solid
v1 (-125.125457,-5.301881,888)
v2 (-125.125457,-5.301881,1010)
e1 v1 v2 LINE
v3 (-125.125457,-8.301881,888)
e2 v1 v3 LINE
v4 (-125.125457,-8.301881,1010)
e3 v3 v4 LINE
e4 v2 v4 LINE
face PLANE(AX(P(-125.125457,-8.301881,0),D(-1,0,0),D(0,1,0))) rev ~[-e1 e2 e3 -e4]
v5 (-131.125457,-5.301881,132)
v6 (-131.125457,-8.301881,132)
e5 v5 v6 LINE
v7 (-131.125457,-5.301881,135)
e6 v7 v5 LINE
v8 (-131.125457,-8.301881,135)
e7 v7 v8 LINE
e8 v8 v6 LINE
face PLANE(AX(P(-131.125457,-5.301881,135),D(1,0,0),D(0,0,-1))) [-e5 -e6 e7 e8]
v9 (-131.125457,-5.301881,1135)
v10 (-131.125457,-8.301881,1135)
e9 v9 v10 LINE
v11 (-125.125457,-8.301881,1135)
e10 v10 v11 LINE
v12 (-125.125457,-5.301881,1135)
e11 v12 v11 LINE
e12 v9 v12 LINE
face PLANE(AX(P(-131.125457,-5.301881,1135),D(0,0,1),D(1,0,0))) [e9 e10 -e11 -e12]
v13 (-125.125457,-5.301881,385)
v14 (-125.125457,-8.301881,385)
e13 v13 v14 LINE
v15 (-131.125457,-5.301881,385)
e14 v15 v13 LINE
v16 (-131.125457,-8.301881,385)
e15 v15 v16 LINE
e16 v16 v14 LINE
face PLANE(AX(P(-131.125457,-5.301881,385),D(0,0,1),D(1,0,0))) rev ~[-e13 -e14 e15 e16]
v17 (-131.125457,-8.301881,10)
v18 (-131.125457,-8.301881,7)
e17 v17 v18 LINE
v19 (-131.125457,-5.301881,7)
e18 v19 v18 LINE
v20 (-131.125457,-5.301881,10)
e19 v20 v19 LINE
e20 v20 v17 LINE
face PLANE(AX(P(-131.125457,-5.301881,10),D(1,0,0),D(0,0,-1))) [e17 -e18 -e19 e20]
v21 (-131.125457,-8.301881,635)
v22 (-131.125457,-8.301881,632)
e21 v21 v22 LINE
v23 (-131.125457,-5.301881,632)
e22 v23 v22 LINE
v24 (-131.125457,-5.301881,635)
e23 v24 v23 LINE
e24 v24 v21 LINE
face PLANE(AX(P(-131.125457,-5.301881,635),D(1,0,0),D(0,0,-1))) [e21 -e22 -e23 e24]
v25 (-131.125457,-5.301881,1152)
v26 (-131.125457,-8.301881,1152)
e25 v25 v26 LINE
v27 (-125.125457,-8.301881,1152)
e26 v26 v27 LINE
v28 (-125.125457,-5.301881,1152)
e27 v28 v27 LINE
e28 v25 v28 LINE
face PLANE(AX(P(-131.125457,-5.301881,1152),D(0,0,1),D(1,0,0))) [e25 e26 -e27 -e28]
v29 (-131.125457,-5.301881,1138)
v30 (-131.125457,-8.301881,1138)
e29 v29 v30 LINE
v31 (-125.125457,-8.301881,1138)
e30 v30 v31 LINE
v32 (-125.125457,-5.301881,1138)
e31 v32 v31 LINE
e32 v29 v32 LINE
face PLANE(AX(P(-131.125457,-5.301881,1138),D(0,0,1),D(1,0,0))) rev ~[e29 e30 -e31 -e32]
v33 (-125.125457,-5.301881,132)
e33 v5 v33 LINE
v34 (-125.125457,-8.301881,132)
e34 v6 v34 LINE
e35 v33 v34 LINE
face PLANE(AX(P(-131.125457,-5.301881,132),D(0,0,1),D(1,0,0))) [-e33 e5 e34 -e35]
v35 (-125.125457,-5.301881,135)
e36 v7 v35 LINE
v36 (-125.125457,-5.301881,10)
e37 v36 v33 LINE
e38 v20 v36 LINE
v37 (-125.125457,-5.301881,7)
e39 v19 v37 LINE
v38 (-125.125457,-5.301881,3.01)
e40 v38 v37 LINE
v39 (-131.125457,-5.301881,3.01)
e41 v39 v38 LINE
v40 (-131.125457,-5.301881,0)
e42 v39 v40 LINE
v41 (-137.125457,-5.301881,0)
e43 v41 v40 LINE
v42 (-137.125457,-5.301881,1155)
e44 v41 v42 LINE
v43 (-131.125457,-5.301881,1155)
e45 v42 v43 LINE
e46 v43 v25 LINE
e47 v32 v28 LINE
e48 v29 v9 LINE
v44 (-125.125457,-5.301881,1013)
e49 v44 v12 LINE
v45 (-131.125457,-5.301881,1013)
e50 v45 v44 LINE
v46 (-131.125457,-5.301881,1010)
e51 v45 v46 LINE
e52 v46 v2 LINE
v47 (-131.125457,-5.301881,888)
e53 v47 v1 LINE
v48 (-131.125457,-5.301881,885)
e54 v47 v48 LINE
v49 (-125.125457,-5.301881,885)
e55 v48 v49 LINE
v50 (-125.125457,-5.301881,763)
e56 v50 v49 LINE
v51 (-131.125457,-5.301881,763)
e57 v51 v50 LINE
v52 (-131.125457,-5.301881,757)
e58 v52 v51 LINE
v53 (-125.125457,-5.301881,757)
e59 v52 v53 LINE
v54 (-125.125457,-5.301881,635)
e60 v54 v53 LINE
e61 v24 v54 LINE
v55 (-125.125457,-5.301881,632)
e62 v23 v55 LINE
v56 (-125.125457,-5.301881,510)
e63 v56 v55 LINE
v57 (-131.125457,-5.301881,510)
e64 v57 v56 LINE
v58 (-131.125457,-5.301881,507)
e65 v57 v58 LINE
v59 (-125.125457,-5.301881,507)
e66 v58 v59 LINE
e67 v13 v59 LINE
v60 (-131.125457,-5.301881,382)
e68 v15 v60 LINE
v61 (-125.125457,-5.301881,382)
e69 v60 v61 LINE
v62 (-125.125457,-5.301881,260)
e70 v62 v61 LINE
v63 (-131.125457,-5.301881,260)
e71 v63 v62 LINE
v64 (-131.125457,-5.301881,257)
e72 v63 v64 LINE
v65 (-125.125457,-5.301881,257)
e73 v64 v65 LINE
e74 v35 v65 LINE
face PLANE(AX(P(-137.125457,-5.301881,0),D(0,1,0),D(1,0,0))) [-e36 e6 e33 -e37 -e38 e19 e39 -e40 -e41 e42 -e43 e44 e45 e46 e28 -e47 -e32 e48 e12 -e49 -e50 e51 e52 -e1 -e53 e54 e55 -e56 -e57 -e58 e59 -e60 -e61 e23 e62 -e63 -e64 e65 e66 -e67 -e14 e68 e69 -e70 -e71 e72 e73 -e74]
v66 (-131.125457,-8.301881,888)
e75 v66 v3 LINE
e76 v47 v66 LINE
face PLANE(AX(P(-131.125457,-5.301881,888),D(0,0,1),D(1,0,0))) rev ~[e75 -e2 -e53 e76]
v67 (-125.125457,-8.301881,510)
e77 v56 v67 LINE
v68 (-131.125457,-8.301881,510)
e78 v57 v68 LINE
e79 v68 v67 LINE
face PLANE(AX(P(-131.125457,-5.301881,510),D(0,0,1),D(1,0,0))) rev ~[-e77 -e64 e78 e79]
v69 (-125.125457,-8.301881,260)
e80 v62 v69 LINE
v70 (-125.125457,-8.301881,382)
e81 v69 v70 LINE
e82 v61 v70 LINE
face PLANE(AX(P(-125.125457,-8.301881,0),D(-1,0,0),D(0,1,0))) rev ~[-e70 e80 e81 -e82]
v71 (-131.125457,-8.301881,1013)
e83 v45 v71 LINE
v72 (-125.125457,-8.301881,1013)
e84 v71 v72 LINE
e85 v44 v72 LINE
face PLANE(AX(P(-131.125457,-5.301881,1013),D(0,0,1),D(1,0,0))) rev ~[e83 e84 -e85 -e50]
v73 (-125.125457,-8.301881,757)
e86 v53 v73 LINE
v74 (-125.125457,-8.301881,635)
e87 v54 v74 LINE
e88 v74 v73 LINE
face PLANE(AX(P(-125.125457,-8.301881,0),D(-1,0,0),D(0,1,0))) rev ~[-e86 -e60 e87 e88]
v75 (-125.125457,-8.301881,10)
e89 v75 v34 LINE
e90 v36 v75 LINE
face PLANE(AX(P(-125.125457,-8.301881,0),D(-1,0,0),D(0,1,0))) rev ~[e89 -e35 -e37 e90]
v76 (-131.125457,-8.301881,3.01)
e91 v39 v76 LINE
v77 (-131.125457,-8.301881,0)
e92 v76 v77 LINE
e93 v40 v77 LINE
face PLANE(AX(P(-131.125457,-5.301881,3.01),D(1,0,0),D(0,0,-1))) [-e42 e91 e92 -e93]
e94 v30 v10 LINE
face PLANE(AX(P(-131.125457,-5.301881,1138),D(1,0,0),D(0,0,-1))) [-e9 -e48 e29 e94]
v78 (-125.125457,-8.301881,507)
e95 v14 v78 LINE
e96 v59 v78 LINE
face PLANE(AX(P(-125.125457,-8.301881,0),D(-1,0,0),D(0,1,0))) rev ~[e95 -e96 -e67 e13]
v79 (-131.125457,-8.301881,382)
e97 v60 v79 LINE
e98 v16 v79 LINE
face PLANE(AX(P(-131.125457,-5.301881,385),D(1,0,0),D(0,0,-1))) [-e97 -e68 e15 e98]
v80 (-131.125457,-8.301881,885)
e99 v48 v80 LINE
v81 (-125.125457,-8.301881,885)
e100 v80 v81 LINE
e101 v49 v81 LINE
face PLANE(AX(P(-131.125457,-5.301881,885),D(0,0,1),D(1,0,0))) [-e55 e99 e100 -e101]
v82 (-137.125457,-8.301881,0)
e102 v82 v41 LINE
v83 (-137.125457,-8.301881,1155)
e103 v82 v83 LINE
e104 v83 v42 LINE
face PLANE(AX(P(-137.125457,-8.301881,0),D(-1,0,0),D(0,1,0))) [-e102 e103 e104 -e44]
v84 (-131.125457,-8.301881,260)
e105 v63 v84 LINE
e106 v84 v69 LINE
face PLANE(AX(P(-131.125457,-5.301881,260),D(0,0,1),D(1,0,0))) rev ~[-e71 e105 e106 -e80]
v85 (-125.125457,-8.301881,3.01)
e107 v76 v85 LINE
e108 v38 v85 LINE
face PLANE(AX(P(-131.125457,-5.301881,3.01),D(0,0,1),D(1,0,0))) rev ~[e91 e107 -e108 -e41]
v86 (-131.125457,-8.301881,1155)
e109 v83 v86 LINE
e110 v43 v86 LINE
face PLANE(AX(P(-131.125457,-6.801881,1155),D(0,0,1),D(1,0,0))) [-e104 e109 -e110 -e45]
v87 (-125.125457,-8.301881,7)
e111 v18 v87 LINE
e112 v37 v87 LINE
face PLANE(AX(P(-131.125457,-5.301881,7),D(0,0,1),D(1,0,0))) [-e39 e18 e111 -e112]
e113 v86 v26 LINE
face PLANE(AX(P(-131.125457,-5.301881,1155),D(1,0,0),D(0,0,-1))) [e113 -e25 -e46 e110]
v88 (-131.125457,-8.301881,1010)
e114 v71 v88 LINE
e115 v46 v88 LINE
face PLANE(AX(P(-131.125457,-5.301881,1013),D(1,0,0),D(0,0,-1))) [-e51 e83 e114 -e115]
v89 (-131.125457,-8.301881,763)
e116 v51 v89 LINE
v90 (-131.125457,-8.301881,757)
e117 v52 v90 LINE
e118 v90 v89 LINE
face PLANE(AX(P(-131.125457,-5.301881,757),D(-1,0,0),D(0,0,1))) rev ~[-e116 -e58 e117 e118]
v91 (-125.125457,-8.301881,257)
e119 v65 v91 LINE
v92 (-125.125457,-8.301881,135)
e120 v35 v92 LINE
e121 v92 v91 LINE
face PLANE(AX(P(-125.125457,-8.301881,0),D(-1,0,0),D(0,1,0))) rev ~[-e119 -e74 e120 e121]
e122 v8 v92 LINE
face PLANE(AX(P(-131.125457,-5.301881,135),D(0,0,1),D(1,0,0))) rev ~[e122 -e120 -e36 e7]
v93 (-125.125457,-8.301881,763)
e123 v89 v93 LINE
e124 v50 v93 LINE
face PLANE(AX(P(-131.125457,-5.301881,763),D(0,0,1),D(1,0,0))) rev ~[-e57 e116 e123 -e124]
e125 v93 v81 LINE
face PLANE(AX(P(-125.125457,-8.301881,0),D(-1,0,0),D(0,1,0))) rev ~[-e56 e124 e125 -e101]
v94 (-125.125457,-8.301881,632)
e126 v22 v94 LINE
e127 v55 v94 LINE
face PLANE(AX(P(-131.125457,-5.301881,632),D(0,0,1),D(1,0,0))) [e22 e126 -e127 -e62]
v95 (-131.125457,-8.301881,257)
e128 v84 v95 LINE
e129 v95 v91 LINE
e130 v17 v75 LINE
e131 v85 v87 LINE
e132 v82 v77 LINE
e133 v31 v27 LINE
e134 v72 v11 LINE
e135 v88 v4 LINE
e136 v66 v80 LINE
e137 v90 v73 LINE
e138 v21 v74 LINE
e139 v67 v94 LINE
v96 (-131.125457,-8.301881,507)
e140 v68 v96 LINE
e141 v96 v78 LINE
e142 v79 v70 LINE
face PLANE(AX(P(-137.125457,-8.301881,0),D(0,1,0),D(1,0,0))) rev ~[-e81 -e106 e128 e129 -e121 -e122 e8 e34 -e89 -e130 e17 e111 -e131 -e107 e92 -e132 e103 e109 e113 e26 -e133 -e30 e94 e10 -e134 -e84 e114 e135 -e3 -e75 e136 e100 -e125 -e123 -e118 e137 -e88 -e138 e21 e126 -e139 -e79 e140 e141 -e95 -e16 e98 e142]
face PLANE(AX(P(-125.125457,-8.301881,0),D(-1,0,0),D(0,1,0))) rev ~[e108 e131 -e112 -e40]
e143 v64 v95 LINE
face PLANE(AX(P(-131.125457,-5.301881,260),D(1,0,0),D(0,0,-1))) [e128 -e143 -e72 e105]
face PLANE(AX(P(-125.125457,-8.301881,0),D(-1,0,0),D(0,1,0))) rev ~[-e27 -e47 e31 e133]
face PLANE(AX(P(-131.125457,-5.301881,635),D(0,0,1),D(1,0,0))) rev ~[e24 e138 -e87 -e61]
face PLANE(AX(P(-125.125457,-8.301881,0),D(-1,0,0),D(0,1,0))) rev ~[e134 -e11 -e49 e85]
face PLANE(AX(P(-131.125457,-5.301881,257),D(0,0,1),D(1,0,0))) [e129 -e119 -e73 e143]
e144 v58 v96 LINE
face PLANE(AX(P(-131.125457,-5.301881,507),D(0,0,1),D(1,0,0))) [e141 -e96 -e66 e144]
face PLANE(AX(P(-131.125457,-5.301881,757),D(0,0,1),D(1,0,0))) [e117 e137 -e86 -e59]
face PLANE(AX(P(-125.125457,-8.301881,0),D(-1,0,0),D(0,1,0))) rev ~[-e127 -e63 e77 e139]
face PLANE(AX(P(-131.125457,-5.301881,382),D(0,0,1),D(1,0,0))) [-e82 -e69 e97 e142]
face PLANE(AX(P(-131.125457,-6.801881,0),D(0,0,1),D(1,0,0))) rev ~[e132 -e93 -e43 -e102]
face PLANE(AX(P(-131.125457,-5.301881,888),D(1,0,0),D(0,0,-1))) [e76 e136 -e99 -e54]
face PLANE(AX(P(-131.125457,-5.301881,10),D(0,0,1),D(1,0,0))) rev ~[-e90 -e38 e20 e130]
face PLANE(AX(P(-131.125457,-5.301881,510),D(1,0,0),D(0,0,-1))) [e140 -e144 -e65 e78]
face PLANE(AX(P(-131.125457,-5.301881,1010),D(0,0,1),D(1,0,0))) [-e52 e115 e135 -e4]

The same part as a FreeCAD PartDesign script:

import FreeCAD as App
import Part
import Sketcher
from FreeCAD import Vector


def add_polygon(sketch, points):
    """Adds a closed chain of lines whose ends are joined by coincident constraints."""
    first, n = sketch.GeometryCount, len(points)
    for a, b in zip(points, points[1:] + points[:1]):
        sketch.addGeometry(Part.LineSegment(App.Vector(*a, 0), App.Vector(*b, 0)), False)
    for i in range(n):
        sketch.addConstraint(Sketcher.Constraint("Coincident", first + i, 2, first + (i + 1) % n, 1))

doc = App.newDocument("Part")
body = doc.addObject("PartDesign::Body", "Body")

# Sketch on XY plane
sketch1 = doc.addObject("Sketcher::SketchObject", "Sketch")
body.addObject(sketch1)
sketch1.AttachmentSupport = (doc.XY_Plane, [""])
sketch1.MapMode = "FlatFace"
add_polygon(sketch1, [(-137.1, -5.3), (-137.1, -8.3), (-125.1, -8.3), (-125.1, -5.3)])  # lines 0-3
sketch1.addConstraint(Sketcher.Constraint("Vertical", 0))
sketch1.addConstraint(Sketcher.Constraint("Horizontal", 1))
sketch1.addConstraint(Sketcher.Constraint("Vertical", 2))
sketch1.addConstraint(Sketcher.Constraint("Horizontal", 3))
sketch1.addConstraint(Sketcher.Constraint("DistanceX", 1, 1, 1, 2, 12.0))
sketch1.addConstraint(Sketcher.Constraint("DistanceY", 0, 2, 0, 1, 3.0))
sketch1.addConstraint(Sketcher.Constraint("DistanceY", 0, 2, -1, 1, 8.301881))
sketch1.addConstraint(Sketcher.Constraint("DistanceX", 0, 2, -1, 1, 137.125457))
pad1 = doc.addObject("PartDesign::Pad", "Pad")
body.addObject(pad1)
pad1.Profile = sketch1
pad1.Length = 1155

# Sketch on XZ plane
sketch2 = doc.addObject("Sketcher::SketchObject", "Sketch001")
body.addObject(sketch2)
sketch2.AttachmentSupport = (doc.XZ_Plane, [""])
sketch2.MapMode = "FlatFace"
sketch2.AttachmentOffset = App.Placement(Vector(0, 0, 5.301881), App.Rotation())
add_polygon(sketch2, [(-131.1, 0), (-131.1, 3), (-125.1, 3), (-125.1, 0)])  # lines 0-3
add_polygon(sketch2, [(-131.1, 7), (-131.1, 10), (-125.1, 10), (-125.1, 7)])  # lines 4-7
add_polygon(sketch2, [(-131.1, 132), (-131.1, 135), (-125.1, 135), (-125.1, 132)])  # lines 8-11
add_polygon(sketch2, [(-131.1, 257), (-131.1, 260), (-125.1, 260), (-125.1, 257)])  # lines 12-15
add_polygon(sketch2, [(-131.1, 382), (-131.1, 385), (-125.1, 385), (-125.1, 382)])  # lines 16-19
add_polygon(sketch2, [(-131.1, 507), (-131.1, 510), (-125.1, 510), (-125.1, 507)])  # lines 20-23
add_polygon(sketch2, [(-131.1, 632), (-131.1, 635), (-125.1, 635), (-125.1, 632)])  # lines 24-27
add_polygon(sketch2, [(-131.1, 757), (-131.1, 763), (-125.1, 763), (-125.1, 757)])  # lines 28-31
add_polygon(sketch2, [(-131.1, 885), (-131.1, 888), (-125.1, 888), (-125.1, 885)])  # lines 32-35
add_polygon(sketch2, [(-131.1, 1010), (-131.1, 1013), (-125.1, 1013), (-125.1, 1010)])  # lines 36-39
add_polygon(sketch2, [(-131.1, 1135), (-131.1, 1138), (-125.1, 1138), (-125.1, 1135)])  # lines 40-43
add_polygon(sketch2, [(-131.1, 1152), (-131.1, 1155), (-125.1, 1155), (-125.1, 1152)])  # lines 44-47
sketch2.addConstraint(Sketcher.Constraint("Vertical", 0))
sketch2.addConstraint(Sketcher.Constraint("Horizontal", 1))
sketch2.addConstraint(Sketcher.Constraint("Vertical", 2))
sketch2.addConstraint(Sketcher.Constraint("Horizontal", 3))
sketch2.addConstraint(Sketcher.Constraint("Vertical", 4))
sketch2.addConstraint(Sketcher.Constraint("Horizontal", 5))
sketch2.addConstraint(Sketcher.Constraint("Vertical", 6))
sketch2.addConstraint(Sketcher.Constraint("Horizontal", 7))
sketch2.addConstraint(Sketcher.Constraint("Vertical", 8))
sketch2.addConstraint(Sketcher.Constraint("Horizontal", 9))
sketch2.addConstraint(Sketcher.Constraint("Vertical", 10))
sketch2.addConstraint(Sketcher.Constraint("Horizontal", 11))
sketch2.addConstraint(Sketcher.Constraint("Vertical", 12))
sketch2.addConstraint(Sketcher.Constraint("Horizontal", 13))
sketch2.addConstraint(Sketcher.Constraint("Vertical", 14))
sketch2.addConstraint(Sketcher.Constraint("Horizontal", 15))
sketch2.addConstraint(Sketcher.Constraint("Vertical", 16))
sketch2.addConstraint(Sketcher.Constraint("Horizontal", 17))
sketch2.addConstraint(Sketcher.Constraint("Vertical", 18))
sketch2.addConstraint(Sketcher.Constraint("Horizontal", 19))
sketch2.addConstraint(Sketcher.Constraint("Vertical", 20))
sketch2.addConstraint(Sketcher.Constraint("Horizontal", 21))
sketch2.addConstraint(Sketcher.Constraint("Vertical", 22))
sketch2.addConstraint(Sketcher.Constraint("Horizontal", 23))
sketch2.addConstraint(Sketcher.Constraint("Vertical", 24))
sketch2.addConstraint(Sketcher.Constraint("Horizontal", 25))
sketch2.addConstraint(Sketcher.Constraint("Vertical", 26))
sketch2.addConstraint(Sketcher.Constraint("Horizontal", 27))
sketch2.addConstraint(Sketcher.Constraint("Vertical", 28))
sketch2.addConstraint(Sketcher.Constraint("Horizontal", 29))
sketch2.addConstraint(Sketcher.Constraint("Vertical", 30))
sketch2.addConstraint(Sketcher.Constraint("Horizontal", 31))
sketch2.addConstraint(Sketcher.Constraint("Vertical", 32))
sketch2.addConstraint(Sketcher.Constraint("Horizontal", 33))
sketch2.addConstraint(Sketcher.Constraint("Vertical", 34))
sketch2.addConstraint(Sketcher.Constraint("Horizontal", 35))
sketch2.addConstraint(Sketcher.Constraint("Vertical", 36))
sketch2.addConstraint(Sketcher.Constraint("Horizontal", 37))
sketch2.addConstraint(Sketcher.Constraint("Vertical", 38))
sketch2.addConstraint(Sketcher.Constraint("Horizontal", 39))
sketch2.addConstraint(Sketcher.Constraint("Vertical", 40))
sketch2.addConstraint(Sketcher.Constraint("Horizontal", 41))
sketch2.addConstraint(Sketcher.Constraint("Vertical", 42))
sketch2.addConstraint(Sketcher.Constraint("Horizontal", 43))
sketch2.addConstraint(Sketcher.Constraint("Vertical", 44))
sketch2.addConstraint(Sketcher.Constraint("Horizontal", 45))
sketch2.addConstraint(Sketcher.Constraint("Vertical", 46))
sketch2.addConstraint(Sketcher.Constraint("Horizontal", 47))
sketch2.addConstraint(Sketcher.Constraint("PointOnObject", 2, 2, -1))
sketch2.addConstraint(Sketcher.Constraint("Vertical", 3, 2, 4, 2))
sketch2.addConstraint(Sketcher.Constraint("Vertical", 2, 2, 5, 2))
sketch2.addConstraint(Sketcher.Constraint("Vertical", 7, 2, 8, 2))
sketch2.addConstraint(Sketcher.Constraint("Vertical", 6, 2, 9, 2))
sketch2.addConstraint(Sketcher.Constraint("Vertical", 11, 2, 12, 2))
sketch2.addConstraint(Sketcher.Constraint("Vertical", 10, 2, 13, 2))
sketch2.addConstraint(Sketcher.Constraint("Vertical", 15, 2, 16, 2))
sketch2.addConstraint(Sketcher.Constraint("Vertical", 14, 2, 17, 2))
sketch2.addConstraint(Sketcher.Constraint("Vertical", 19, 2, 20, 2))
sketch2.addConstraint(Sketcher.Constraint("Vertical", 18, 2, 21, 2))
sketch2.addConstraint(Sketcher.Constraint("Vertical", 23, 2, 24, 2))
sketch2.addConstraint(Sketcher.Constraint("Vertical", 22, 2, 25, 2))
sketch2.addConstraint(Sketcher.Constraint("Vertical", 27, 2, 28, 2))
sketch2.addConstraint(Sketcher.Constraint("Vertical", 26, 2, 29, 2))
sketch2.addConstraint(Sketcher.Constraint("Vertical", 31, 2, 32, 2))
sketch2.addConstraint(Sketcher.Constraint("Vertical", 30, 2, 33, 2))
sketch2.addConstraint(Sketcher.Constraint("Vertical", 35, 2, 36, 2))
sketch2.addConstraint(Sketcher.Constraint("Vertical", 34, 2, 37, 2))
sketch2.addConstraint(Sketcher.Constraint("Vertical", 39, 2, 40, 2))
sketch2.addConstraint(Sketcher.Constraint("Vertical", 38, 2, 41, 2))
sketch2.addConstraint(Sketcher.Constraint("Vertical", 43, 2, 44, 2))
sketch2.addConstraint(Sketcher.Constraint("Vertical", 42, 2, 45, 2))
sketch2.addConstraint(Sketcher.Constraint("Equal", 6, 8))
sketch2.addConstraint(Sketcher.Constraint("Equal", 10, 12))
sketch2.addConstraint(Sketcher.Constraint("Equal", 14, 16))
sketch2.addConstraint(Sketcher.Constraint("Equal", 18, 20))
sketch2.addConstraint(Sketcher.Constraint("Equal", 22, 24))
sketch2.addConstraint(Sketcher.Constraint("Equal", 47, 28))
sketch2.addConstraint(Sketcher.Constraint("Equal", 26, 32))
sketch2.addConstraint(Sketcher.Constraint("Equal", 34, 36))
sketch2.addConstraint(Sketcher.Constraint("Equal", 38, 40))
sketch2.addConstraint(Sketcher.Constraint("Equal", 42, 44))
sketch2.addConstraint(Sketcher.Constraint("DistanceX", 1, 1, 1, 2, 6.0))
sketch2.addConstraint(Sketcher.Constraint("DistanceY", 4, 1, 4, 2, 3.0))
sketch2.addConstraint(Sketcher.Constraint("DistanceY", -1, 1, 4, 2, 10.0))
sketch2.addConstraint(Sketcher.Constraint("DistanceY", -1, 1, 8, 2, 135.0))
sketch2.addConstraint(Sketcher.Constraint("DistanceY", -1, 1, 12, 2, 260.0))
sketch2.addConstraint(Sketcher.Constraint("DistanceY", -1, 1, 16, 2, 385.0))
sketch2.addConstraint(Sketcher.Constraint("DistanceY", -1, 1, 20, 2, 510.0))
sketch2.addConstraint(Sketcher.Constraint("DistanceY", -1, 1, 24, 2, 635.0))
sketch2.addConstraint(Sketcher.Constraint("DistanceY", -1, 1, 28, 2, 763.0))
sketch2.addConstraint(Sketcher.Constraint("DistanceY", -1, 1, 32, 2, 888.0))
sketch2.addConstraint(Sketcher.Constraint("DistanceY", -1, 1, 36, 2, 1013.0))
sketch2.addConstraint(Sketcher.Constraint("DistanceY", -1, 1, 40, 2, 1138.0))
sketch2.addConstraint(Sketcher.Constraint("DistanceY", -1, 1, 44, 2, 1155.0))
sketch2.addConstraint(Sketcher.Constraint("DistanceY", 0, 1, 0, 2, 3.01))
sketch2.addConstraint(Sketcher.Constraint("DistanceX", 0, 2, -1, 1, 131.125457))
pocket1 = doc.addObject("PartDesign::Pocket", "Pocket")
body.addObject(pocket1)
pocket1.Profile = sketch2
pocket1.Type = "ThroughAll"
pocket1.Reversed = True

doc.recompute()
